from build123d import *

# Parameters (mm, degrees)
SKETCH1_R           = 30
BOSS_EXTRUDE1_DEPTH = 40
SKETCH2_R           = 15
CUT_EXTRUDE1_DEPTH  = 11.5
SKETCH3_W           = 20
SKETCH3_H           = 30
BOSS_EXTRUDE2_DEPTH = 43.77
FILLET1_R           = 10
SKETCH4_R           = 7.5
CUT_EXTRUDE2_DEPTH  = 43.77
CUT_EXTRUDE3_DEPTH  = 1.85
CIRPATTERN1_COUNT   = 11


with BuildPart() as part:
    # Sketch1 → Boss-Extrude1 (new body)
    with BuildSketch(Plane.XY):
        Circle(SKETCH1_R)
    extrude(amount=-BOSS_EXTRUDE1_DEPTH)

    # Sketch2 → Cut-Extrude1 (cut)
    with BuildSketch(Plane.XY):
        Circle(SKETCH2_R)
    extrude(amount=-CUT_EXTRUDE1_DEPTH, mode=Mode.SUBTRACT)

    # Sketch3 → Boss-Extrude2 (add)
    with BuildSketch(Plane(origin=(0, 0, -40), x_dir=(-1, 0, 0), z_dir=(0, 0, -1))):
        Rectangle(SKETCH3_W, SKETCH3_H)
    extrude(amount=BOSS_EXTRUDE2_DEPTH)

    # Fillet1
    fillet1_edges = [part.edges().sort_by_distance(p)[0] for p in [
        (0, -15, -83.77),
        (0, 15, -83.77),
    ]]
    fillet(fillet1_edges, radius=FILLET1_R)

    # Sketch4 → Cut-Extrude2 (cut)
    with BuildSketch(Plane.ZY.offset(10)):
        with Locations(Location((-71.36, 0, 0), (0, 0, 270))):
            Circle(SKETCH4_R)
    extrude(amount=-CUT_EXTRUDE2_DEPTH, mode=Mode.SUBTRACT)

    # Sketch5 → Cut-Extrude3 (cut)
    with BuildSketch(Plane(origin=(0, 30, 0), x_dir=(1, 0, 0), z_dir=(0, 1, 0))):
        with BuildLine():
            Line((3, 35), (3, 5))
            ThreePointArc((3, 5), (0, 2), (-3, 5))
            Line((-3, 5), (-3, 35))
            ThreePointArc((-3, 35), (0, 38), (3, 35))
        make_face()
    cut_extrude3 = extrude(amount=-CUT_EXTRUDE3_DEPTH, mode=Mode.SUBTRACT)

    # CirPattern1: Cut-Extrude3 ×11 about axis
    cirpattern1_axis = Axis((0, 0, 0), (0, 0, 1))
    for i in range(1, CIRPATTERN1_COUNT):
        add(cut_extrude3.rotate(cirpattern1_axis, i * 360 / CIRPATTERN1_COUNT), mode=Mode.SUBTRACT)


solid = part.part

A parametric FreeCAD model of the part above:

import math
import FreeCAD as App
import Part
import Sketcher
from FreeCAD import Vector


def edges_at(feature, points):
    """Names of the edges that pass closest to the given points."""
    edges = feature.Shape.Edges
    near = lambda p: min(range(len(edges)), key=lambda i: edges[i].distToShape(Part.Vertex(*p))[0])
    return sorted({f"Edge{near(p) + 1}" for p in points})


def add_polygon(sketch, points):
    """Adds a closed chain of lines whose ends are joined by coincident constraints."""
    first, n = sketch.GeometryCount, len(points)
    for a, b in zip(points, points[1:] + points[:1]):
        sketch.addGeometry(Part.LineSegment(App.Vector(*a, 0), App.Vector(*b, 0)), False)
    for i in range(n):
        sketch.addConstraint(Sketcher.Constraint("Coincident", first + i, 2, first + (i + 1) % n, 1))

doc = App.newDocument("Part")
body = doc.addObject("PartDesign::Body", "Body")

sketch1 = doc.addObject("Sketcher::SketchObject", "Sketch")
body.addObject(sketch1)
sketch1.AttachmentSupport = (doc.XY_Plane, [""])
sketch1.MapMode = "FlatFace"
sketch1.addGeometry(Part.Circle(Vector(0, 0, 0), Vector(0, 0, 1), 30), False)
sketch1.addConstraint(Sketcher.Constraint("Coincident", 0, 3, -1, 1))
sketch1.addConstraint(Sketcher.Constraint("Diameter", 0, 60.0))
pad1 = doc.addObject("PartDesign::Pad", "Pad")
body.addObject(pad1)
pad1.Profile = sketch1
pad1.Length = 40
pad1.Reversed = True

sketch2 = doc.addObject("Sketcher::SketchObject", "Sketch001")
body.addObject(sketch2)
sketch2.AttachmentSupport = (doc.XY_Plane, [""])
sketch2.MapMode = "FlatFace"
sketch2.addGeometry(Part.Circle(Vector(0, 0, 0), Vector(0, 0, 1), 15), False)
sketch2.addConstraint(Sketcher.Constraint("Coincident", 0, 3, -1, 1))
sketch2.addConstraint(Sketcher.Constraint("Diameter", 0, 30.0))
pocket1 = doc.addObject("PartDesign::Pocket", "Pocket")
body.addObject(pocket1)
pocket1.Profile = sketch2
pocket1.Length = 11.5

sketch3 = doc.addObject("Sketcher::SketchObject", "Sketch002")
body.addObject(sketch3)
sketch3.AttachmentSupport = (doc.XY_Plane, [""])
sketch3.MapMode = "FlatFace"
sketch3.AttachmentOffset = App.Placement(Vector(0, 0, -40), App.Rotation())
add_polygon(sketch3, [(10, 15), (10, -15), (-10, -15), (-10, 15)])
sketch3.addConstraint(Sketcher.Constraint("Vertical", 0))
sketch3.addConstraint(Sketcher.Constraint("Horizontal", 1))
sketch3.addConstraint(Sketcher.Constraint("Vertical", 2))
sketch3.addConstraint(Sketcher.Constraint("Horizontal", 3))
sketch3.addConstraint(Sketcher.Constraint("Symmetric", 0, 2, 2, 2, -1, 1))
sketch3.addConstraint(Sketcher.Constraint("DistanceX", 1, 2, 1, 1, 20.0))
sketch3.addConstraint(Sketcher.Constraint("DistanceY", 0, 2, 0, 1, 30.0))
pad2 = doc.addObject("PartDesign::Pad", "Pad001")
body.addObject(pad2)
pad2.Profile = sketch3
pad2.Length = 43.77
pad2.Reversed = True
doc.recompute()

fillet = doc.addObject("PartDesign::Fillet", "Fillet")
body.addObject(fillet)
fillet.Base = (pad2, edges_at(pad2, [(0, -15, -83.77), (0, 15, -83.77)]))
fillet.Radius = 10

sketch4 = doc.addObject("Sketcher::SketchObject", "Sketch003")
body.addObject(sketch4)
sketch4.AttachmentSupport = (doc.YZ_Plane, [""])
sketch4.MapMode = "FlatFace"
sketch4.AttachmentOffset = App.Placement(Vector(0, 0, -10), App.Rotation())
sketch4.addGeometry(Part.Circle(Vector(0, -71, 0), Vector(0, 0, 1), 8), False)
sketch4.addConstraint(Sketcher.Constraint("PointOnObject", 0, 3, -2))
sketch4.addConstraint(Sketcher.Constraint("Diameter", 0, 15.0))
sketch4.addConstraint(Sketcher.Constraint("DistanceY", 0, 3, -1, 1, 71.36))
pocket2 = doc.addObject("PartDesign::Pocket", "Pocket001")
body.addObject(pocket2)
pocket2.Profile = sketch4
pocket2.Length = 43.77
pocket2.Reversed = True

sketch5 = doc.addObject("Sketcher::SketchObject", "Sketch004")
body.addObject(sketch5)
sketch5.AttachmentSupport = (doc.XZ_Plane, [""])
sketch5.MapMode = "FlatFace"
sketch5.AttachmentOffset = App.Placement(Vector(0, 0, -30), App.Rotation())
sketch5.addGeometry(Part.LineSegment(Vector(3, -5, 0), Vector(3, -35, 0)), False)
sketch5.addGeometry(Part.ArcOfCircle(Part.Circle(Vector(0, -35, 0), Vector(0, 0, 1), 3), math.radians(180), math.radians(360)), False)
sketch5.addGeometry(Part.LineSegment(Vector(-3, -35, 0), Vector(-3, -5, 0)), False)
sketch5.addGeometry(Part.ArcOfCircle(Part.Circle(Vector(0, -5, 0), Vector(0, 0, 1), 3), math.radians(0), math.radians(180)), False)
sketch5.addConstraint(Sketcher.Constraint("Tangent", 0, 2, 1, 2))
sketch5.addConstraint(Sketcher.Constraint("Tangent", 1, 1, 2, 1))
sketch5.addConstraint(Sketcher.Constraint("Tangent", 2, 2, 3, 2))
sketch5.addConstraint(Sketcher.Constraint("Tangent", 3, 1, 0, 1))
sketch5.addConstraint(Sketcher.Constraint("Vertical", 0))
sketch5.addConstraint(Sketcher.Constraint("Vertical", 2))
sketch5.addConstraint(Sketcher.Constraint("PointOnObject", 1, 3, -2))
sketch5.addConstraint(Sketcher.Constraint("Radius", 1, 3.0))
sketch5.addConstraint(Sketcher.Constraint("DistanceY", 0, 2, 0, 1, 30.0))
sketch5.addConstraint(Sketcher.Constraint("DistanceY", 1, 3, -1, 1, 35.0))
pocket3 = doc.addObject("PartDesign::Pocket", "Pocket002")
body.addObject(pocket3)
pocket3.Profile = sketch5
pocket3.Length = 1.85
pocket3.Reversed = True
doc.recompute()

polarpattern = doc.addObject("PartDesign::PolarPattern", "PolarPattern")
body.addObject(polarpattern)
polarpattern.Originals = [pocket3]
polarpattern.Axis = (doc.Z_Axis, [""])
polarpattern.Angle = 360
polarpattern.Occurrences = 11
body.Tip = polarpattern

doc.recompute()
